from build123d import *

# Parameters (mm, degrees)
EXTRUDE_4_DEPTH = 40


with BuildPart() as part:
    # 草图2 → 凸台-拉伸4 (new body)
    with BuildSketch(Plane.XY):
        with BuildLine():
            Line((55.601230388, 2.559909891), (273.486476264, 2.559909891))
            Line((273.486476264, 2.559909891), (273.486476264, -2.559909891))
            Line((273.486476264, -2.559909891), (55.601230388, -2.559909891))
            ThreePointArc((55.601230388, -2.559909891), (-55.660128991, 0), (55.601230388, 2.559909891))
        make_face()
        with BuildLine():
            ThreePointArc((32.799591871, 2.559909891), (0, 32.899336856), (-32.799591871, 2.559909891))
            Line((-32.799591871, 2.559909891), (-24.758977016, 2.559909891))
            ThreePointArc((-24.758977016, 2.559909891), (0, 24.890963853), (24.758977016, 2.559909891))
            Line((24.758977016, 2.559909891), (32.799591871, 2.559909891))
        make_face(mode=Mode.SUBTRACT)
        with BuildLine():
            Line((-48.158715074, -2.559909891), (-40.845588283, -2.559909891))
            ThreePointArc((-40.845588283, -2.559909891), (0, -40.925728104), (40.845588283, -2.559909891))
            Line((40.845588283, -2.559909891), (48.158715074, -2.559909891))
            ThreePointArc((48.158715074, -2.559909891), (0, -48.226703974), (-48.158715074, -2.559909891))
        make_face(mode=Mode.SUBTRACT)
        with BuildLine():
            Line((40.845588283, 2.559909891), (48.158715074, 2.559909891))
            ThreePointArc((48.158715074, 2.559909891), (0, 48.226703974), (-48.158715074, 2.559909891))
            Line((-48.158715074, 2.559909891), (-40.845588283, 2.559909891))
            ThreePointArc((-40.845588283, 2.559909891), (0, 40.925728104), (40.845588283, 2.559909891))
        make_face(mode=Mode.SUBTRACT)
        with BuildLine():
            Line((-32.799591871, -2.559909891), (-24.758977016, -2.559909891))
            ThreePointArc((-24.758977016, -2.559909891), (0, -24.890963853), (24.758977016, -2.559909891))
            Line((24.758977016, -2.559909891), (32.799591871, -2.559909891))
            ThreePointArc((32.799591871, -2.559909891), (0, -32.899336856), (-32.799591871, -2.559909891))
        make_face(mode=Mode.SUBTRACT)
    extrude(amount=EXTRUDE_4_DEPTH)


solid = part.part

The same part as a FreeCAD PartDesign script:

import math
import FreeCAD as App
import Part
import Sketcher
from FreeCAD import Vector
Q = App.Units.Quantity

doc = App.newDocument("Part")
body = doc.addObject("PartDesign::Body", "Body")

# Sketch on XY plane
sketch1 = doc.addObject("Sketcher::SketchObject", "Sketch")
body.addObject(sketch1)
sketch1.AttachmentSupport = (doc.XY_Plane, [""])
sketch1.MapMode = "FlatFace"
sketch1.addGeometry(Part.LineSegment(Vector(273.486476, 2.55991, 0), Vector(55.60123, 2.55991, 0)), False)
sketch1.addGeometry(Part.ArcOfCircle(Part.Circle(Vector(0, 0, 0), Vector(0, 0, 1), 55.660129), math.radians(2.636066), math.radians(357.363934)), False)
sketch1.addGeometry(Part.LineSegment(Vector(55.60123, -2.55991, 0), Vector(273.486476, -2.55991, 0)), False)
sketch1.addGeometry(Part.LineSegment(Vector(273.486476, -2.55991, 0), Vector(273.486476, 2.55991, 0)), False)
sketch1.addGeometry(Part.LineSegment(Vector(-48.158715, -2.55991, 0), Vector(-40.845588, -2.55991, 0)), False)
sketch1.addGeometry(Part.ArcOfCircle(Part.Circle(Vector(0, 0, 0), Vector(0, 0, 1), 40.925728), math.radians(-176.4138), math.radians(-3.5862)), False)
sketch1.addGeometry(Part.LineSegment(Vector(40.845588, -2.55991, 0), Vector(48.158715, -2.55991, 0)), False)
sketch1.addGeometry(Part.ArcOfCircle(Part.Circle(Vector(0, 0, 0), Vector(0, 0, 1), 48.226704), math.radians(-176.957267), math.radians(-3.042733)), False)
sketch1.addGeometry(Part.LineSegment(Vector(-32.799592, -2.55991, 0), Vector(-24.758977, -2.55991, 0)), False)
sketch1.addGeometry(Part.ArcOfCircle(Part.Circle(Vector(0, 0, 0), Vector(0, 0, 1), 24.890964), math.radians(-174.096981), math.radians(-5.903019)), False)
sketch1.addGeometry(Part.LineSegment(Vector(24.758977, -2.55991, 0), Vector(32.799592, -2.55991, 0)), False)
sketch1.addGeometry(Part.ArcOfCircle(Part.Circle(Vector(0, 0, 0), Vector(0, 0, 1), 32.899337), math.radians(-175.537283), math.radians(-4.462717)), False)
sketch1.addGeometry(Part.LineSegment(Vector(32.799592, 2.55991, 0), Vector(24.758977, 2.55991, 0)), False)
sketch1.addGeometry(Part.ArcOfCircle(Part.Circle(Vector(0, 0, 0), Vector(0, 0, 1), 24.890964), math.radians(5.903019), math.radians(174.096981)), False)
sketch1.addGeometry(Part.LineSegment(Vector(-24.758977, 2.55991, 0), Vector(-32.799592, 2.55991, 0)), False)
sketch1.addGeometry(Part.ArcOfCircle(Part.Circle(Vector(0, 0, 0), Vector(0, 0, 1), 32.899337), math.radians(4.462717), math.radians(175.537283)), False)
sketch1.addGeometry(Part.ArcOfCircle(Part.Circle(Vector(0, 0, 0), Vector(0, 0, 1), 40.925728), math.radians(3.5862), math.radians(176.4138)), False)
sketch1.addGeometry(Part.LineSegment(Vector(-40.845588, 2.55991, 0), Vector(-48.158715, 2.55991, 0)), False)
sketch1.addGeometry(Part.ArcOfCircle(Part.Circle(Vector(0, 0, 0), Vector(0, 0, 1), 48.226704), math.radians(3.042733), math.radians(176.957267)), False)
sketch1.addGeometry(Part.LineSegment(Vector(48.158715, 2.55991, 0), Vector(40.845588, 2.55991, 0)), False)
sketch1.addConstraint(Sketcher.Constraint("Coincident", 0, 2, 1, 1))
sketch1.addConstraint(Sketcher.Constraint("Coincident", 1, 2, 2, 1))
sketch1.addConstraint(Sketcher.Constraint("Coincident", 2, 2, 3, 1))
sketch1.addConstraint(Sketcher.Constraint("Coincident", 3, 2, 0, 1))
sketch1.addConstraint(Sketcher.Constraint("Coincident", 4, 2, 5, 1))
sketch1.addConstraint(Sketcher.Constraint("Coincident", 5, 2, 6, 1))
sketch1.addConstraint(Sketcher.Constraint("Coincident", 6, 2, 7, 2))
sketch1.addConstraint(Sketcher.Constraint("Coincident", 7, 1, 4, 1))
sketch1.addConstraint(Sketcher.Constraint("Coincident", 8, 2, 9, 1))
sketch1.addConstraint(Sketcher.Constraint("Coincident", 9, 2, 10, 1))
sketch1.addConstraint(Sketcher.Constraint("Coincident", 10, 2, 11, 2))
sketch1.addConstraint(Sketcher.Constraint("Coincident", 11, 1, 8, 1))
sketch1.addConstraint(Sketcher.Constraint("Coincident", 12, 2, 13, 1))
sketch1.addConstraint(Sketcher.Constraint("Coincident", 13, 2, 14, 1))
sketch1.addConstraint(Sketcher.Constraint("Coincident", 14, 2, 15, 2))
sketch1.addConstraint(Sketcher.Constraint("Coincident", 15, 1, 12, 1))
sketch1.addConstraint(Sketcher.Constraint("Coincident", 16, 2, 17, 1))
sketch1.addConstraint(Sketcher.Constraint("Coincident", 17, 2, 18, 2))
sketch1.addConstraint(Sketcher.Constraint("Coincident", 18, 1, 19, 1))
sketch1.addConstraint(Sketcher.Constraint("Coincident", 19, 2, 16, 1))
sketch1.addConstraint(Sketcher.Constraint("Horizontal", 0))
sketch1.addConstraint(Sketcher.Constraint("Horizontal", 2))
sketch1.addConstraint(Sketcher.Constraint("Vertical", 3))
sketch1.addConstraint(Sketcher.Constraint("Horizontal", 4))
sketch1.addConstraint(Sketcher.Constraint("Horizontal", 6))
sketch1.addConstraint(Sketcher.Constraint("Horizontal", 8))
sketch1.addConstraint(Sketcher.Constraint("Horizontal", 10))
sketch1.addConstraint(Sketcher.Constraint("Horizontal", 12))
sketch1.addConstraint(Sketcher.Constraint("Horizontal", 14))
sketch1.addConstraint(Sketcher.Constraint("Horizontal", 17))
sketch1.addConstraint(Sketcher.Constraint("Horizontal", 19))
sketch1.addConstraint(Sketcher.Constraint("Coincident", 1, 3, -1, 1))
sketch1.addConstraint(Sketcher.Constraint("Coincident", 5, 3, -1, 1))
sketch1.addConstraint(Sketcher.Constraint("Coincident", 7, 3, -1, 1))
sketch1.addConstraint(Sketcher.Constraint("Coincident", 9, 3, -1, 1))
sketch1.addConstraint(Sketcher.Constraint("Coincident", 11, 3, -1, 1))
sketch1.addConstraint(Sketcher.Constraint("Coincident", 13, 3, -1, 1))
sketch1.addConstraint(Sketcher.Constraint("Coincident", 15, 3, -1, 1))
sketch1.addConstraint(Sketcher.Constraint("Coincident", 16, 3, -1, 1))
sketch1.addConstraint(Sketcher.Constraint("Coincident", 18, 3, -1, 1))
sketch1.addConstraint(Sketcher.Constraint("Equal", 9, 13))
sketch1.addConstraint(Sketcher.Constraint("Equal", 11, 15))
sketch1.addConstraint(Sketcher.Constraint("Equal", 5, 16))
sketch1.addConstraint(Sketcher.Constraint("Equal", 7, 18))
sketch1.addConstraint(Sketcher.Constraint("Horizontal", 2, 2, 4, 2))
sketch1.addConstraint(Sketcher.Constraint("Horizontal", 4, 2, 5, 2))
sketch1.addConstraint(Sketcher.Constraint("Horizontal", 7, 1, 8, 2))
sketch1.addConstraint(Sketcher.Constraint("Horizontal", 8, 2, 9, 2))
sketch1.addConstraint(Sketcher.Constraint("Horizontal", 3, 2, 12, 2))
sketch1.addConstraint(Sketcher.Constraint("Horizontal", 12, 2, 13, 2))
sketch1.addConstraint(Sketcher.Constraint("Horizontal", 15, 1, 16, 2))
sketch1.addConstraint(Sketcher.Constraint("Horizontal", 17, 2, 18, 1))
sketch1.addConstraint(Sketcher.Constraint("Vertical", 0, 2, 1, 2))
sketch1.addConstraint(Sketcher.Constraint("Radius", 1, Q("55.660129 mm")))
sketch1.addConstraint(Sketcher.Constraint("Radius", 5, Q("40.925728 mm")))
sketch1.addConstraint(Sketcher.Constraint("Radius", 7, Q("48.226704 mm")))
sketch1.addConstraint(Sketcher.Constraint("Radius", 9, Q("24.890964 mm")))
sketch1.addConstraint(Sketcher.Constraint("Radius", 11, Q("32.899337 mm")))
sketch1.addConstraint(Sketcher.Constraint("DistanceY", 3, 1, 3, 2, Q("5.11982 mm")))
sketch1.addConstraint(Sketcher.Constraint("DistanceX", 0, 2, 0, 1, Q("217.885246 mm")))
pad1 = doc.addObject("PartDesign::Pad", "Pad")
body.addObject(pad1)
pad1.Profile = sketch1
pad1.Length = 40

doc.recompute()
